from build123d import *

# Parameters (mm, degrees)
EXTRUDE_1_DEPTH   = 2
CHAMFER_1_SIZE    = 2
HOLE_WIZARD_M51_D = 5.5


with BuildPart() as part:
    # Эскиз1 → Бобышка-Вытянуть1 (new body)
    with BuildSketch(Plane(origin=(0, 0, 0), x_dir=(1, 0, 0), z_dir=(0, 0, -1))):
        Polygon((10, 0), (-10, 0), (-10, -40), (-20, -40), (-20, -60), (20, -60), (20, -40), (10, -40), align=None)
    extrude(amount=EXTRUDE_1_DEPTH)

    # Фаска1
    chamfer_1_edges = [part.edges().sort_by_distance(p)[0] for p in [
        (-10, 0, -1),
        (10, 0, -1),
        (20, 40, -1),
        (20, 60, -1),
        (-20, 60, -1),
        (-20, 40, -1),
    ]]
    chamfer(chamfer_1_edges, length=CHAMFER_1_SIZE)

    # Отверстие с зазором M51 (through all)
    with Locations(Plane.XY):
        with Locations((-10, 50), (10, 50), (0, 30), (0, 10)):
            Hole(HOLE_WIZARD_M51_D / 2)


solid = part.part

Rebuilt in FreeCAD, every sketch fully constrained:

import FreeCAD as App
import Part
import Sketcher

V = App.Vector
Q = App.Units.Quantity


def edges_at(feature, points):
    """Names of the edges that pass closest to the given points."""
    edges = feature.Shape.Edges
    near = lambda p: min(range(len(edges)), key=lambda i: edges[i].distToShape(Part.Vertex(*p))[0])
    return sorted({f"Edge{near(p) + 1}" for p in points})


def add_polygon(sketch, points):
    """Adds a closed chain of lines whose ends are joined by coincident constraints."""
    first, n = sketch.GeometryCount, len(points)
    for a, b in zip(points, points[1:] + points[:1]):
        sketch.addGeometry(Part.LineSegment(App.Vector(*a, 0), App.Vector(*b, 0)), False)
    for i in range(n):
        sketch.addConstraint(Sketcher.Constraint("Coincident", first + i, 2, first + (i + 1) % n, 1))

doc = App.newDocument("Part")
body = doc.addObject("PartDesign::Body", "Body")

sketch1 = body.newObject("Sketcher::SketchObject", "Sketch")
sketch1.AttachmentSupport = (doc.getObject("XY_Plane"), [""])
sketch1.MapMode = "FlatFace"
add_polygon(sketch1, [(10, 0), (-10, 0), (-10, 40), (-20, 40), (-20, 60), (20, 60), (20, 40), (10, 40)])
sketch1.addConstraint([
    Sketcher.Constraint("Horizontal", 0),
    Sketcher.Constraint("Vertical", 1),
    Sketcher.Constraint("Horizontal", 2),
    Sketcher.Constraint("Vertical", 3),
    Sketcher.Constraint("Horizontal", 4),
    Sketcher.Constraint("Vertical", 5),
    Sketcher.Constraint("Horizontal", 6),
    Sketcher.Constraint("Vertical", 7),
    Sketcher.Constraint("Symmetric", 0, 2, 7, 2, -1, 1),
    Sketcher.Constraint("Symmetric", 2, 2, 5, 2, -2),
    Sketcher.Constraint("Equal", 4, 1),
    Sketcher.Constraint("Equal", 0, 3),
    Sketcher.Constraint("DistanceX", 0, 2, 0, 1, Q("20 mm")),
    Sketcher.Constraint("DistanceX", 2, 2, 2, 1, Q("10 mm")),
])
pad1 = body.newObject("PartDesign::Pad", "Pad")
pad1.Profile = sketch1
pad1.Length = 2
pad1.Reversed = True
doc.recompute()

chamfer = body.newObject("PartDesign::Chamfer", "Chamfer")
chamfer.Base = (pad1, edges_at(pad1, [
    (-10, 0, -1),
    (10, 0, -1),
    (20, 40, -1),
    (20, 60, -1),
    (-20, 60, -1),
    (-20, 40, -1),
]))
chamfer.Size = 2

sketch2 = body.newObject("Sketcher::SketchObject", "Sketch001")
sketch2.AttachmentSupport = (doc.getObject("XY_Plane"), [""])
sketch2.MapMode = "FlatFace"
sketch2.addGeometry([
    Part.Circle(V(-10, 50, 0), V(0, 0, 1), 2.8),
    Part.Circle(V(10, 50, 0), V(0, 0, 1), 2.8),
    Part.Circle(V(0, 30, 0), V(0, 0, 1), 2.8),
    Part.Circle(V(0, 10, 0), V(0, 0, 1), 2.8),
], False)
sketch2.addConstraint([
    Sketcher.Constraint("Equal", 0, 1),
    Sketcher.Constraint("Equal", 1, 2),
    Sketcher.Constraint("Equal", 2, 3),
    Sketcher.Constraint("Symmetric", 0, 3, 1, 3, -2),
    Sketcher.Constraint("PointOnObject", 2, 3, -2),
    Sketcher.Constraint("PointOnObject", 3, 3, -2),
    Sketcher.Constraint("Diameter", 0, Q("5.5 mm")),
    Sketcher.Constraint("DistanceX", 0, 3, -1, 1, Q("10 mm")),
    Sketcher.Constraint("DistanceY", -1, 1, 0, 3, Q("50 mm")),
    Sketcher.Constraint("DistanceY", -1, 1, 2, 3, Q("30 mm")),
    Sketcher.Constraint("DistanceY", -1, 1, 3, 3, Q("10 mm")),
])
doc.recompute()
hole = body.newObject("PartDesign::Hole", "Hole")
hole.Profile = sketch2
hole.ThreadType = "None"
hole.Diameter = 5.5
hole.DepthType = "ThroughAll"

doc.recompute()
